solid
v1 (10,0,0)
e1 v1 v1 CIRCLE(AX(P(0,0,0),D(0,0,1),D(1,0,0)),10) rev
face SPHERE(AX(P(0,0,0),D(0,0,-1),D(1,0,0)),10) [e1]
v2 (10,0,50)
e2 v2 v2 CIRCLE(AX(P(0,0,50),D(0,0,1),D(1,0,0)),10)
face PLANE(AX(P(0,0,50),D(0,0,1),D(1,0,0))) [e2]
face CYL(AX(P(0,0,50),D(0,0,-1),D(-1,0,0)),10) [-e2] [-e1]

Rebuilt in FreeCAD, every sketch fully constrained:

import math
import FreeCAD as App
import Part
import Sketcher
from FreeCAD import Vector

doc = App.newDocument("Part")
body = doc.addObject("PartDesign::Body", "Body")

sketch1 = body.newObject("Sketcher::SketchObject", "Sketch")
sketch1.AttachmentSupport = (doc.getObject("XY_Plane"), [""])
sketch1.MapMode = "FlatFace"
sketch1.addGeometry(Part.Circle(Vector(0, 0, 0), Vector(0, 0, 1), 10), False)
sketch1.addConstraint([
    Sketcher.Constraint("Coincident", 0, 3, -1, 1),
    Sketcher.Constraint("Diameter", 0, 20.0),
])
pad1 = body.newObject("PartDesign::Pad", "Pad")
pad1.Profile = sketch1
pad1.Length = 50

sketch2 = body.newObject("Sketcher::SketchObject", "Sketch001")
sketch2.AttachmentSupport = (doc.getObject("XZ_Plane"), [""])
sketch2.MapMode = "FlatFace"
sketch2.addGeometry([
    Part.LineSegment(Vector(0, -10, 0), Vector(0, 10, 0)),
    Part.ArcOfCircle(Part.Circle(Vector(0, 0, 0), Vector(0, 0, 1), 10), math.radians(-90), math.radians(90)),
], False)
sketch2.addConstraint([
    Sketcher.Constraint("Coincident", 0, 1, 1, 1),
    Sketcher.Constraint("Coincident", 1, 2, 0, 2),
    Sketcher.Constraint("Vertical", 0),
    Sketcher.Constraint("Coincident", 1, 3, -1, 1),
    Sketcher.Constraint("PointOnObject", 0, 1, -2),
    Sketcher.Constraint("Radius", 1, 10.0),
])
revolution = body.newObject("PartDesign::Revolution", "Revolution")
revolution.Profile = sketch2
revolution.ReferenceAxis = (sketch2, ["V_Axis"])
revolution.Angle = 360

doc.recompute()
